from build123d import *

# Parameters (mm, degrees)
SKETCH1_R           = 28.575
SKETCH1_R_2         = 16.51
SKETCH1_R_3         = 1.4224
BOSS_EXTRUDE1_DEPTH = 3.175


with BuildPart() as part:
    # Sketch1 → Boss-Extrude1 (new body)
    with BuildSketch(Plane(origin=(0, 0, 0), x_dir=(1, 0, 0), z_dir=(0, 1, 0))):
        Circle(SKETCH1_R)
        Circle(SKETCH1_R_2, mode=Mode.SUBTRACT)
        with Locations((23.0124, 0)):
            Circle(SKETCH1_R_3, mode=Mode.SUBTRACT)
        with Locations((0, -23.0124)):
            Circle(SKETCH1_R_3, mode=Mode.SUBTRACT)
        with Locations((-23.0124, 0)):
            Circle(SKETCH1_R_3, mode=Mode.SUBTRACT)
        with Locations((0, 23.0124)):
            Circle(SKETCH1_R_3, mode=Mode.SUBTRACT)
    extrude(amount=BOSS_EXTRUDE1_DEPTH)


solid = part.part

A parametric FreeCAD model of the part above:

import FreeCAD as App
import Part
import Sketcher
from FreeCAD import Vector
Q = App.Units.Quantity

doc = App.newDocument("Part")
body = doc.addObject("PartDesign::Body", "Body")

sketch1 = body.newObject("Sketcher::SketchObject", "Sketch")
sketch1.AttachmentSupport = (doc.getObject("XZ_Plane"), [""])
sketch1.MapMode = "FlatFace"
sketch1.addGeometry(Part.Circle(Vector(0, 0, 0), Vector(0, 0, 1), 28.6), False)
sketch1.addGeometry(Part.Circle(Vector(0, 23, 0), Vector(0, 0, 1), 1.4), False)
sketch1.addGeometry(Part.Circle(Vector(-23, 0, 0), Vector(0, 0, 1), 1.4), False)
sketch1.addGeometry(Part.Circle(Vector(0, 0, 0), Vector(0, 0, 1), 16.5), False)
sketch1.addGeometry(Part.Circle(Vector(23, 0, 0), Vector(0, 0, 1), 1.4), False)
sketch1.addGeometry(Part.Circle(Vector(0, -23, 0), Vector(0, 0, 1), 1.4), False)
sketch1.addConstraint(Sketcher.Constraint("Coincident", 0, 3, -1, 1))
sketch1.addConstraint(Sketcher.Constraint("Coincident", 3, 3, -1, 1))
sketch1.addConstraint(Sketcher.Constraint("Equal", 1, 2))
sketch1.addConstraint(Sketcher.Constraint("Equal", 2, 4))
sketch1.addConstraint(Sketcher.Constraint("Equal", 4, 5))
sketch1.addConstraint(Sketcher.Constraint("Symmetric", 2, 3, 4, 3, -1, 1))
sketch1.addConstraint(Sketcher.Constraint("Symmetric", 1, 3, 5, 3, -1, 1))
sketch1.addConstraint(Sketcher.Constraint("PointOnObject", 1, 3, -2))
sketch1.addConstraint(Sketcher.Constraint("PointOnObject", 2, 3, -1))
sketch1.addConstraint(Sketcher.Constraint("Diameter", 3, Q("1.3 in")))
sketch1.addConstraint(Sketcher.Constraint("Diameter", 0, Q("2.25 in")))
sketch1.addConstraint(Sketcher.Constraint("Diameter", 1, Q("0.112 in")))
sketch1.addConstraint(Sketcher.Constraint("DistanceY", -1, 1, 1, 3, Q("0.906 in")))
sketch1.addConstraint(Sketcher.Constraint("DistanceX", 2, 3, -1, 1, Q("0.906 in")))
pad1 = body.newObject("PartDesign::Pad", "Pad")
pad1.Profile = sketch1
pad1.Length = Q("0.125 in")
pad1.Reversed = True

doc.recompute()
